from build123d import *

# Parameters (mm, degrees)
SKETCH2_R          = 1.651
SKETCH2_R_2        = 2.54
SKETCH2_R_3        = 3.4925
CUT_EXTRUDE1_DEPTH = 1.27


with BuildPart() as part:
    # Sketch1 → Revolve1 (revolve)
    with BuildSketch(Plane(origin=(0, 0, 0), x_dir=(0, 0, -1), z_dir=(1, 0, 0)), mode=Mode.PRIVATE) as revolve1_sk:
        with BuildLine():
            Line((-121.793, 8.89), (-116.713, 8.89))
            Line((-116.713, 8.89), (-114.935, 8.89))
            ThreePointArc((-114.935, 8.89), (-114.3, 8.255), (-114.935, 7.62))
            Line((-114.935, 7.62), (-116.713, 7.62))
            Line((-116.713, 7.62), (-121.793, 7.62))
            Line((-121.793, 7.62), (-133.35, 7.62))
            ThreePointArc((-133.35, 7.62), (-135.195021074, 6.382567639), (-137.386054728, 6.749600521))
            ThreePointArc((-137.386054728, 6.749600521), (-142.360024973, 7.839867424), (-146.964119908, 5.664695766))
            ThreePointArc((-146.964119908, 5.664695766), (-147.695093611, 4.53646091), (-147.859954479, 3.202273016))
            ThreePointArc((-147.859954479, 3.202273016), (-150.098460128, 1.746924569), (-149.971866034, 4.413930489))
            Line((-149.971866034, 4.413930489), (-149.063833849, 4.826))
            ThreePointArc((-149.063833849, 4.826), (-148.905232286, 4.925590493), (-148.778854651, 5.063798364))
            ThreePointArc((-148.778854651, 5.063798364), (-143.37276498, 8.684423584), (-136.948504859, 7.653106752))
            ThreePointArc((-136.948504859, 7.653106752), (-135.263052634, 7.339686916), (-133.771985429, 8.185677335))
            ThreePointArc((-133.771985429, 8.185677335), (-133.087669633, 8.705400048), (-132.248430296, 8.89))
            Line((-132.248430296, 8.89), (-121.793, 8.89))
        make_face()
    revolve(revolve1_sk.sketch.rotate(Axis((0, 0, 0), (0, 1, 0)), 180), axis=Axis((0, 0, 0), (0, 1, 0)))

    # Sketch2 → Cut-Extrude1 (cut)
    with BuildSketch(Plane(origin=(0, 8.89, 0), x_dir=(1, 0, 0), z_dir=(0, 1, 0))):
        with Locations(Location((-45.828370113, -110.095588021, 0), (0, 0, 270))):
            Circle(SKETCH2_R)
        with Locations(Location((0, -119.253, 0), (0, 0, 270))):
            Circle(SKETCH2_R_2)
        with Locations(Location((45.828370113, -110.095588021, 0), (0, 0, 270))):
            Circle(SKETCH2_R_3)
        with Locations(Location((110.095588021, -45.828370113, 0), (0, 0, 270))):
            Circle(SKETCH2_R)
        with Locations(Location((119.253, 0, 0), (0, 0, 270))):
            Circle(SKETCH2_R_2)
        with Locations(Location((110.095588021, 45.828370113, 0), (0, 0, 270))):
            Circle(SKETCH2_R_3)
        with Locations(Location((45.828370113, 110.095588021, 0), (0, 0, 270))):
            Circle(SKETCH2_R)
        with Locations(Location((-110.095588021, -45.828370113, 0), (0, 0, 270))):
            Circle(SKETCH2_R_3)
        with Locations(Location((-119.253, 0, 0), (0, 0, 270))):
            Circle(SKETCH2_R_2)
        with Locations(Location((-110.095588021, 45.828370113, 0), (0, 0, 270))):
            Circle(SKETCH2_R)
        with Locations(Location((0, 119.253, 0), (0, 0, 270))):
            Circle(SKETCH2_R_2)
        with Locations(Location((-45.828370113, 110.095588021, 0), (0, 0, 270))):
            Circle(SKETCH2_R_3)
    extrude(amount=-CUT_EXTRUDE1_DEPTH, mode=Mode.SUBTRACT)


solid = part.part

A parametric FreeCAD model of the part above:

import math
import FreeCAD as App
import Part
import Sketcher
Q = App.Units.Quantity

doc = App.newDocument("Part")
params = doc.addObject("Spreadsheet::Sheet", "Params")
for row, (alias, value) in enumerate([
    ("sketch1_radius", "0.35 in"),
    ("sketch1_radius2", "0.025 in"),
    ("sketch1_height", "0.725 in"),
    ("revolution_angle", "360 deg"),
    ("sketch2_diameter", "0.2 in"),
    ("sketch2_diameter2", "0.13 in"),
    ("sketch2_diameter3", "0.275 in"),
    ("pocket1_length", "0.05 in"),
], start=1):
    params.set(f"A{row}", alias)
    params.set(f"B{row}", "=" + value)
    params.setAlias(f"B{row}", alias)

body = doc.addObject("PartDesign::Body", "Body")

# Sketch on YZ plane
sketch1 = body.newObject("Sketcher::SketchObject", "Sketch")
sketch1.AttachmentSupport = (doc.getObject("YZ_Plane"), [""])
sketch1.MapMode = "FlatFace"
sketch1.addGeometry(Part.ArcOfCircle(Part.Circle(App.Vector(8.26, 114.94, 0), App.Vector(0, 0, 1), 0.64), math.radians(180), math.radians(360)), False)
sketch1.addGeometry(Part.LineSegment(App.Vector(8.89, 114.94, 0), App.Vector(8.89, 132.25, 0)), False)
sketch1.addGeometry(Part.ArcOfCircle(Part.Circle(App.Vector(6.89, 132.25, 0), App.Vector(0, 0, 1), 2), math.radians(0), math.radians(50)), False)
sketch1.addGeometry(Part.ArcOfCircle(Part.Circle(App.Vector(9.81, 135.68, 0), App.Vector(0, 0, 1), 2.5), math.radians(149), math.radians(230)), False)
sketch1.addGeometry(Part.ArcOfCircle(Part.Circle(App.Vector(0, 141.47, 0), App.Vector(0, 0, 1), 8.89), math.radians(-31), math.radians(55)), False)
sketch1.addGeometry(Part.ArcOfCircle(Part.Circle(App.Vector(5.46, 149.35, 0), App.Vector(0, 0, 1), 0.7), math.radians(-156), math.radians(-125)), False)
sketch1.addGeometry(Part.LineSegment(App.Vector(4.83, 149.06, 0), App.Vector(4.41, 149.97, 0)), False)
sketch1.addGeometry(Part.ArcOfCircle(Part.Circle(App.Vector(3.05, 149.35, 0), App.Vector(0, 0, 1), 1.5), math.radians(24), math.radians(276)), False)
sketch1.addGeometry(Part.ArcOfCircle(Part.Circle(App.Vector(3.51, 144.88, 0), App.Vector(0, 0, 1), 3), math.radians(44), math.radians(96)), False)
sketch1.addGeometry(Part.ArcOfCircle(Part.Circle(App.Vector(0, 141.47, 0), App.Vector(0, 0, 1), 7.89), math.radians(-31), math.radians(44)), False)
sketch1.addGeometry(Part.ArcOfCircle(Part.Circle(App.Vector(9.32, 135.83, 0), App.Vector(0, 0, 1), 3.01), math.radians(149), math.radians(236)), False)
sketch1.addGeometry(Part.LineSegment(App.Vector(7.62, 133.35, 0), App.Vector(7.62, 114.94, 0)), False)
sketch1.addConstraint(Sketcher.Constraint("Tangent", 0, 2, 1, 1))
sketch1.addConstraint(Sketcher.Constraint("Tangent", 1, 2, 2, 1))
sketch1.addConstraint(Sketcher.Constraint("Tangent", 2, 2, 3, 2))
sketch1.addConstraint(Sketcher.Constraint("Tangent", 3, 1, 4, 1))
sketch1.addConstraint(Sketcher.Constraint("Tangent", 4, 2, 5, 2))
sketch1.addConstraint(Sketcher.Constraint("Tangent", 5, 1, 6, 1))
sketch1.addConstraint(Sketcher.Constraint("Tangent", 6, 2, 7, 1))
sketch1.addConstraint(Sketcher.Constraint("Tangent", 7, 2, 8, 2))
sketch1.addConstraint(Sketcher.Constraint("Tangent", 8, 1, 9, 2))
sketch1.addConstraint(Sketcher.Constraint("Tangent", 9, 1, 10, 1))
sketch1.addConstraint(Sketcher.Constraint("Coincident", 10, 2, 11, 1))
sketch1.addConstraint(Sketcher.Constraint("Tangent", 11, 2, 0, 1))
sketch1.addConstraint(Sketcher.Constraint("Vertical", 1))
sketch1.addConstraint(Sketcher.Constraint("Vertical", 11))
sketch1.addConstraint(Sketcher.Constraint("Coincident", 9, 3, 4, 3))
sketch1.addConstraint(Sketcher.Constraint("PointOnObject", 4, 3, -2))
sketch1.addConstraint(Sketcher.Constraint("Horizontal", 5, 3, 7, 3))
sketch1.addConstraint(Sketcher.Constraint("Radius", 4, Q("0.35 in")))
sketch1.addConstraint(Sketcher.Constraint("Radius", 0, Q("0.025 in")))
sketch1.addConstraint(Sketcher.Constraint("DistanceX", -1, 1, 10, 2, Q("0.3 in")))
sketch1.addConstraint(Sketcher.Constraint("DistanceY", 11, 2, 11, 1, Q("0.725 in")))
sketch1.addConstraint(Sketcher.Constraint("DistanceY", -1, 1, 5, 3, Q("5.88 in")))
sketch1.addConstraint(Sketcher.Constraint("DistanceX", -1, 1, 7, 3, Q("0.12 in")))
sketch1.addConstraint(Sketcher.Constraint("DistanceX", -1, 1, 5, 1, Q("0.19 in")))
sketch1.addConstraint(Sketcher.Constraint("DistanceY", -1, 1, 10, 2, Q("5.25 in")))
sketch1.addConstraint(Sketcher.Constraint("Radius", 2, Q("2 mm")))
sketch1.addConstraint(Sketcher.Constraint("Radius", 3, Q("2.5 mm")))
sketch1.addConstraint(Sketcher.Constraint("Radius", 7, Q("1.5 mm")))
sketch1.addConstraint(Sketcher.Constraint("Radius", 8, Q("3 mm")))
sketch1.addConstraint(Sketcher.Constraint("Radius", 9, Q("7.89 mm")))
sketch1.addConstraint(Sketcher.Constraint("DistanceX", 5, 3, 0, 3, Q("0.11 in")))
sketch1.addConstraint(Sketcher.Constraint("Radius", 10, Q("3.006877 mm")))
sketch1.addConstraint(Sketcher.Constraint("DistanceY", 1, 1, 1, 2, Q("17.31343 mm")))
sketch1.setExpression("Constraints[17]", "Params.sketch1_radius")
sketch1.setExpression("Constraints[18]", "Params.sketch1_radius2")
sketch1.setExpression("Constraints[20]", "Params.sketch1_height")
revolution = body.newObject("PartDesign::Revolution", "Revolution")
revolution.Profile = sketch1
revolution.ReferenceAxis = (sketch1, ["H_Axis"])
revolution.setExpression("Angle", "Params.revolution_angle")

# Sketch on XZ plane
sketch2 = body.newObject("Sketcher::SketchObject", "Sketch001")
sketch2.AttachmentSupport = (doc.getObject("XZ_Plane"), [""])
sketch2.MapMode = "FlatFace"
sketch2.AttachmentOffset = App.Placement(App.Vector(0, 0, -0.35 * 25.4), App.Rotation())
sketch2.addGeometry(Part.Circle(App.Vector(-45.8, 110.1, 0), App.Vector(0, 0, 1), 1.7), False)
sketch2.addGeometry(Part.Circle(App.Vector(0, 119.3, 0), App.Vector(0, 0, 1), 2.5), False)
sketch2.addGeometry(Part.Circle(App.Vector(45.8, 110.1, 0), App.Vector(0, 0, 1), 3.5), False)
sketch2.addGeometry(Part.Circle(App.Vector(110.1, 45.8, 0), App.Vector(0, 0, 1), 1.7), False)
sketch2.addGeometry(Part.Circle(App.Vector(119.3, 0, 0), App.Vector(0, 0, 1), 2.5), False)
sketch2.addGeometry(Part.Circle(App.Vector(110.1, -45.8, 0), App.Vector(0, 0, 1), 3.5), False)
sketch2.addGeometry(Part.Circle(App.Vector(45.8, -110.1, 0), App.Vector(0, 0, 1), 1.7), False)
sketch2.addGeometry(Part.Circle(App.Vector(-110.1, 45.8, 0), App.Vector(0, 0, 1), 3.5), False)
sketch2.addGeometry(Part.Circle(App.Vector(-119.3, 0, 0), App.Vector(0, 0, 1), 2.5), False)
sketch2.addGeometry(Part.Circle(App.Vector(-110.1, -45.8, 0), App.Vector(0, 0, 1), 1.7), False)
sketch2.addGeometry(Part.Circle(App.Vector(0, -119.3, 0), App.Vector(0, 0, 1), 2.5), False)
sketch2.addGeometry(Part.Circle(App.Vector(-45.8, -110.1, 0), App.Vector(0, 0, 1), 3.5), False)
sketch2.addConstraint(Sketcher.Constraint("Equal", 0, 3))
sketch2.addConstraint(Sketcher.Constraint("Equal", 1, 4))
sketch2.addConstraint(Sketcher.Constraint("Equal", 2, 5))
sketch2.addConstraint(Sketcher.Constraint("Equal", 3, 6))
sketch2.addConstraint(Sketcher.Constraint("Equal", 5, 7))
sketch2.addConstraint(Sketcher.Constraint("Equal", 4, 8))
sketch2.addConstraint(Sketcher.Constraint("Equal", 6, 9))
sketch2.addConstraint(Sketcher.Constraint("Equal", 8, 10))
sketch2.addConstraint(Sketcher.Constraint("Equal", 7, 11))
sketch2.addConstraint(Sketcher.Constraint("Symmetric", 0, 3, 6, 3, -1, 1))
sketch2.addConstraint(Sketcher.Constraint("Symmetric", 5, 3, 7, 3, -1, 1))
sketch2.addConstraint(Sketcher.Constraint("Symmetric", 4, 3, 8, 3, -1, 1))
sketch2.addConstraint(Sketcher.Constraint("Symmetric", 3, 3, 9, 3, -1, 1))
sketch2.addConstraint(Sketcher.Constraint("Symmetric", 1, 3, 10, 3, -1, 1))
sketch2.addConstraint(Sketcher.Constraint("Symmetric", 2, 3, 11, 3, -1, 1))
sketch2.addConstraint(Sketcher.Constraint("Symmetric", 0, 3, 2, 3, -2))
sketch2.addConstraint(Sketcher.Constraint("Symmetric", 3, 3, 7, 3, -2))
sketch2.addConstraint(Sketcher.Constraint("PointOnObject", 1, 3, -2))
sketch2.addConstraint(Sketcher.Constraint("PointOnObject", 4, 3, -1))
sketch2.addConstraint(Sketcher.Constraint("Diameter", 1, Q("0.2 in")))
sketch2.addConstraint(Sketcher.Constraint("Diameter", 0, Q("0.13 in")))
sketch2.addConstraint(Sketcher.Constraint("Diameter", 2, Q("0.275 in")))
sketch2.addConstraint(Sketcher.Constraint("DistanceY", -1, 1, 1, 3, Q("4.695 in")))
sketch2.addConstraint(Sketcher.Constraint("DistanceX", -1, 1, 4, 3, Q("4.695 in")))
sketch2.addConstraint(Sketcher.Constraint("DistanceX", 0, 3, -1, 1, Q("45.82837 mm")))
sketch2.addConstraint(Sketcher.Constraint("DistanceY", -1, 1, 0, 3, Q("110.095588 mm")))
sketch2.addConstraint(Sketcher.Constraint("DistanceX", -1, 1, 3, 3, Q("110.095588 mm")))
sketch2.addConstraint(Sketcher.Constraint("DistanceY", -1, 1, 3, 3, Q("45.82837 mm")))
sketch2.setExpression("Constraints[19]", "Params.sketch2_diameter")
sketch2.setExpression("Constraints[20]", "Params.sketch2_diameter2")
sketch2.setExpression("Constraints[21]", "Params.sketch2_diameter3")
pocket1 = body.newObject("PartDesign::Pocket", "Pocket")
pocket1.Profile = sketch2
pocket1.setExpression("Length", "Params.pocket1_length")
pocket1.Reversed = True

doc.recompute()
